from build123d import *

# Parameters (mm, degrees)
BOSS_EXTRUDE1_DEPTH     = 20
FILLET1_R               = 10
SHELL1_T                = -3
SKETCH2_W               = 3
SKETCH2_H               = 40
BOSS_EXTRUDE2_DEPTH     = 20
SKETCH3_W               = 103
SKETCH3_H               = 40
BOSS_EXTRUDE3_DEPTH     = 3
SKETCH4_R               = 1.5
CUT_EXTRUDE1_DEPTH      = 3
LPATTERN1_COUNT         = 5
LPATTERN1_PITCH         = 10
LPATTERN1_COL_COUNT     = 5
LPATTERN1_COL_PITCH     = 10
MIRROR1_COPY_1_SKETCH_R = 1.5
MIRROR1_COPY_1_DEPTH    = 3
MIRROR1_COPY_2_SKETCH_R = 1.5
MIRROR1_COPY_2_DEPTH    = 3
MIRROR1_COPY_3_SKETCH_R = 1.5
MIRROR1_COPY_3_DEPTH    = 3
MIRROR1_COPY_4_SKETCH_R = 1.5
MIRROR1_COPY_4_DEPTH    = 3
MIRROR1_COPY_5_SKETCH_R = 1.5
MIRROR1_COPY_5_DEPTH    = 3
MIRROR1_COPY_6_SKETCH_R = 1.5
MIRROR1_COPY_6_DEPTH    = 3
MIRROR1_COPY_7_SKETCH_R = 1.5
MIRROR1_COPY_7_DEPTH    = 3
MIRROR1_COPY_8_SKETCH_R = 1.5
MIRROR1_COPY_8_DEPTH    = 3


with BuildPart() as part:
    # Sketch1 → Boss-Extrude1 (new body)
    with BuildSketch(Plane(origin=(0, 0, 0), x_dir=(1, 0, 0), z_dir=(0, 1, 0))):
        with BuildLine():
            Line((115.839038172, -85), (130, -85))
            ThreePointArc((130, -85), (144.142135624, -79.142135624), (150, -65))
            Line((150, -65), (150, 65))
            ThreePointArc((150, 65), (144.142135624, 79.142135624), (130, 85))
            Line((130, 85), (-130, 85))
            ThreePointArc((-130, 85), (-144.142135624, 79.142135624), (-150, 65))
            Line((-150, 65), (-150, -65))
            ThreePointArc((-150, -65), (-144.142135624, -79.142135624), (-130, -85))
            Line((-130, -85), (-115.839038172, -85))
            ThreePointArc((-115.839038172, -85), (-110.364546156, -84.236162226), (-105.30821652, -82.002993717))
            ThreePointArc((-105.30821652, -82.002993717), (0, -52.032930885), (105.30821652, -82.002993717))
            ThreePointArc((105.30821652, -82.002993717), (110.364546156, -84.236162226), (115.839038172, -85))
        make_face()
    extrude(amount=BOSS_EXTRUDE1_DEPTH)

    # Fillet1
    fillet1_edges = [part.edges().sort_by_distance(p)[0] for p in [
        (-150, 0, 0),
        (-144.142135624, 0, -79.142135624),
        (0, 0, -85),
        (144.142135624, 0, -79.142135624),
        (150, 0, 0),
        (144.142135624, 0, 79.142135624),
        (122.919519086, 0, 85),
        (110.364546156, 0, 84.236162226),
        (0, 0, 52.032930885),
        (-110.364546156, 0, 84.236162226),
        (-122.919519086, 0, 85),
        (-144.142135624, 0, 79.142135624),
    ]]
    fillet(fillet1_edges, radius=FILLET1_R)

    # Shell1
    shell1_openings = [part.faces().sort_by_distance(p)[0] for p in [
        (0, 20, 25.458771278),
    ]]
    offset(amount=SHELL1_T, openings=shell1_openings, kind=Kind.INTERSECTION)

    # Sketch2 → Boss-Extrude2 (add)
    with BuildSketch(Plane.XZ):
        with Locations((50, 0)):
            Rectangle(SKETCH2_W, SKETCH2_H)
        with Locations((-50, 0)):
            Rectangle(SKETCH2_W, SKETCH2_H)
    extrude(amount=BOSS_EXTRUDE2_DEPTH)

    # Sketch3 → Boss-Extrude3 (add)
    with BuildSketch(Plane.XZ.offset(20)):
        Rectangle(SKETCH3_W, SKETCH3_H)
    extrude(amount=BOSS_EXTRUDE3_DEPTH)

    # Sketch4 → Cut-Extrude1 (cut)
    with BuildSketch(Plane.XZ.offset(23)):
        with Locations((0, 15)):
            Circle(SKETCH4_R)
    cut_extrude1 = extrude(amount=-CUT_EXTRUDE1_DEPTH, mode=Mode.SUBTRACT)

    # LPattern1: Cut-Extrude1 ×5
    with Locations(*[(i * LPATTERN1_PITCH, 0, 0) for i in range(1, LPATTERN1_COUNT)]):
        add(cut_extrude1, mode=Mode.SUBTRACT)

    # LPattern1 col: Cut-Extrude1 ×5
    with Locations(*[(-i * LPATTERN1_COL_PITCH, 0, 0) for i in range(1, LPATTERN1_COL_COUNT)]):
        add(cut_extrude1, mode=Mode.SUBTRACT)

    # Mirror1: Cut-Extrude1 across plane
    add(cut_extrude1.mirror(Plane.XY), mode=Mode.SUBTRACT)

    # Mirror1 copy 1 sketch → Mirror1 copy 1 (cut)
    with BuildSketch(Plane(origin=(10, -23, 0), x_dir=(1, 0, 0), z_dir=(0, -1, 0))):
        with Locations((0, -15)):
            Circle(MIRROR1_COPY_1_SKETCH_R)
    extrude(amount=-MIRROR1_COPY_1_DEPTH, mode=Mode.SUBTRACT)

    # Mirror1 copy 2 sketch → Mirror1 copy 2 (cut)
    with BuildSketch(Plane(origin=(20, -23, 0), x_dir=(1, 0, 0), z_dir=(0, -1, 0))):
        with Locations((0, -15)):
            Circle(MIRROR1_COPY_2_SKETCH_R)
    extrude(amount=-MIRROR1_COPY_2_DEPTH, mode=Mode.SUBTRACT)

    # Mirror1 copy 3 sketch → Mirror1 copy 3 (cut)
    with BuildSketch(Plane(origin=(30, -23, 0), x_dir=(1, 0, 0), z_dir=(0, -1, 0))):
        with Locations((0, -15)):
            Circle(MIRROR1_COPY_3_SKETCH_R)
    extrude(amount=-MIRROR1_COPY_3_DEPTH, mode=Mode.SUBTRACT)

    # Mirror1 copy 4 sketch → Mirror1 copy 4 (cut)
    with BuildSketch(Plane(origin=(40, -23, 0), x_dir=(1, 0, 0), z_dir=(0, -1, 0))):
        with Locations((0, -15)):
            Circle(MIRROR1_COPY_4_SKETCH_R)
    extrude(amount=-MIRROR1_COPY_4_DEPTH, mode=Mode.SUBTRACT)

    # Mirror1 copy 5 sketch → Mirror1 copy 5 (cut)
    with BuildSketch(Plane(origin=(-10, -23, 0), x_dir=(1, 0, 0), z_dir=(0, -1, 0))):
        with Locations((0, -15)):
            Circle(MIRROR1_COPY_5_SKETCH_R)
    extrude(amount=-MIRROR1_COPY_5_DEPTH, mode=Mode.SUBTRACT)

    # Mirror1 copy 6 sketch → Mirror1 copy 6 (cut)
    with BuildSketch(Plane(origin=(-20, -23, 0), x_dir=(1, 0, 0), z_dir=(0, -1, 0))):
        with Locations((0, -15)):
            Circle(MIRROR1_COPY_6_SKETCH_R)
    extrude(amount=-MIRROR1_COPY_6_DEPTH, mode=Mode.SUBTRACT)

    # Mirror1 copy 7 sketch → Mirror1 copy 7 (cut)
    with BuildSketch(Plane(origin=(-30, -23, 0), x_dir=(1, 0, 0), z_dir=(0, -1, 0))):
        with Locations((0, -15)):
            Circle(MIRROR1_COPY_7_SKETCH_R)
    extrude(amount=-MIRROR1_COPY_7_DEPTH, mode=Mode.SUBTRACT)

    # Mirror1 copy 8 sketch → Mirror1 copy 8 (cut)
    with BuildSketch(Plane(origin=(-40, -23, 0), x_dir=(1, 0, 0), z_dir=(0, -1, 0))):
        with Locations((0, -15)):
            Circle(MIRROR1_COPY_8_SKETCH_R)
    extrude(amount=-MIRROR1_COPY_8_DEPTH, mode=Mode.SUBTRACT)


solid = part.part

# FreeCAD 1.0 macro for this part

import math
import FreeCAD as App
import Part
import Sketcher
Q = App.Units.Quantity


def edges_at(feature, points):
    """Names of the edges that pass closest to the given points."""
    edges = feature.Shape.Edges
    near = lambda p: min(range(len(edges)), key=lambda i: edges[i].distToShape(Part.Vertex(*p))[0])
    return sorted({f"Edge{near(p) + 1}" for p in points})


def faces_at(feature, points):
    """Names of the faces that lie closest to the given points."""
    faces = feature.Shape.Faces
    near = lambda p: min(range(len(faces)), key=lambda i: faces[i].distToShape(Part.Vertex(*p))[0])
    return sorted({f"Face{near(p) + 1}" for p in points})


def add_polygon(sketch, points):
    """Adds a closed chain of lines whose ends are joined by coincident constraints."""
    first, n = sketch.GeometryCount, len(points)
    for a, b in zip(points, points[1:] + points[:1]):
        sketch.addGeometry(Part.LineSegment(App.Vector(*a, 0), App.Vector(*b, 0)), False)
    for i in range(n):
        sketch.addConstraint(Sketcher.Constraint("Coincident", first + i, 2, first + (i + 1) % n, 1))

doc = App.newDocument("Part")
body = doc.addObject("PartDesign::Body", "Body")

sketch1 = body.newObject("Sketcher::SketchObject", "Sketch")
sketch1.AttachmentSupport = (doc.getObject("XZ_Plane"), [""])
sketch1.MapMode = "FlatFace"
sketch1.addGeometry([
    Part.LineSegment(App.Vector(116, 85, 0), App.Vector(130, 85, 0)),
    Part.ArcOfCircle(Part.Circle(App.Vector(130, 65, 0), App.Vector(0, 0, 1), 20), math.radians(0), math.radians(90)),
    Part.LineSegment(App.Vector(150, 65, 0), App.Vector(150, -65, 0)),
    Part.ArcOfCircle(Part.Circle(App.Vector(130, -65, 0), App.Vector(0, 0, 1), 20), math.radians(-90), math.radians(0)),
    Part.LineSegment(App.Vector(130, -85, 0), App.Vector(-130, -85, 0)),
    Part.ArcOfCircle(Part.Circle(App.Vector(-130, -65, 0), App.Vector(0, 0, 1), 20), math.radians(180), math.radians(270)),
    Part.LineSegment(App.Vector(-150, -65, 0), App.Vector(-150, 65, 0)),
    Part.ArcOfCircle(Part.Circle(App.Vector(-130, 65, 0), App.Vector(0, 0, 1), 20), math.radians(90), math.radians(180)),
    Part.LineSegment(App.Vector(-130, 85, 0), App.Vector(-116, 85, 0)),
    Part.ArcOfCircle(Part.Circle(App.Vector(-116, 65, 0), App.Vector(0, 0, 1), 20), math.radians(58), math.radians(90)),
    Part.ArcOfCircle(Part.Circle(App.Vector(0, 252, 0), App.Vector(0, 0, 1), 200), math.radians(-122), math.radians(-58)),
    Part.ArcOfCircle(Part.Circle(App.Vector(116, 65, 0), App.Vector(0, 0, 1), 20), math.radians(90), math.radians(122)),
], False)
sketch1.addConstraint([
    Sketcher.Constraint("Tangent", 0, 2, 1, 2),
    Sketcher.Constraint("Tangent", 1, 1, 2, 1),
    Sketcher.Constraint("Tangent", 2, 2, 3, 2),
    Sketcher.Constraint("Tangent", 3, 1, 4, 1),
    Sketcher.Constraint("Tangent", 4, 2, 5, 2),
    Sketcher.Constraint("Tangent", 5, 1, 6, 1),
    Sketcher.Constraint("Tangent", 6, 2, 7, 2),
    Sketcher.Constraint("Tangent", 7, 1, 8, 1),
    Sketcher.Constraint("Tangent", 8, 2, 9, 2),
    Sketcher.Constraint("Tangent", 9, 1, 10, 1),
    Sketcher.Constraint("Tangent", 10, 2, 11, 2),
    Sketcher.Constraint("Tangent", 11, 1, 0, 1),
    Sketcher.Constraint("Horizontal", 0),
    Sketcher.Constraint("Vertical", 2),
    Sketcher.Constraint("Horizontal", 4),
    Sketcher.Constraint("Vertical", 6),
    Sketcher.Constraint("Horizontal", 8),
    Sketcher.Constraint("Equal", 1, 3),
    Sketcher.Constraint("Equal", 3, 5),
    Sketcher.Constraint("Equal", 5, 7),
    Sketcher.Constraint("Equal", 7, 9),
    Sketcher.Constraint("Equal", 9, 11),
    Sketcher.Constraint("Symmetric", 1, 3, 5, 3, -1, 1),
    Sketcher.Constraint("Symmetric", 9, 3, 11, 3, -2),
    Sketcher.Constraint("Radius", 1, Q("20 mm")),
    Sketcher.Constraint("Radius", 10, Q("200 mm")),
    Sketcher.Constraint("DistanceX", 4, 2, 4, 1, Q("260 mm")),
    Sketcher.Constraint("DistanceY", 2, 2, 2, 1, Q("130 mm")),
    Sketcher.Constraint("DistanceX", 0, 1, 0, 2, Q("14.160962 mm")),
])
pad1 = body.newObject("PartDesign::Pad", "Pad")
pad1.Profile = sketch1
pad1.Length = 20
pad1.Reversed = True
doc.recompute()

fillet = body.newObject("PartDesign::Fillet", "Fillet")
fillet.Base = (pad1, edges_at(pad1, [
    (-150, 0, 0),
    (-144.142, 0, -79.142),
    (0, 0, -85),
    (144.142, 0, -79.142),
    (150, 0, 0),
    (144.142, 0, 79.142),
    (122.92, 0, 85),
    (110.365, 0, 84.236),
    (0, 0, 52.033),
    (-110.365, 0, 84.236),
    (-122.92, 0, 85),
    (-144.142, 0, 79.142),
]))
fillet.Radius = 10
doc.recompute()

thickness = body.newObject("PartDesign::Thickness", "Thickness")
thickness.Base = (fillet, faces_at(fillet, [(0, 20, 0)]))
thickness.Value = 3
thickness.Reversed = True
thickness.Join = "Intersection"

sketch2 = body.newObject("Sketcher::SketchObject", "Sketch001")
sketch2.AttachmentSupport = (doc.getObject("XZ_Plane"), [""])
sketch2.MapMode = "FlatFace"
add_polygon(sketch2, [(48.5, 20), (48.5, -20), (51.5, -20), (51.5, 20)])
add_polygon(sketch2, [(-51.5, 20), (-51.5, -20), (-48.5, -20), (-48.5, 20)])
sketch2.addConstraint([
    Sketcher.Constraint("Vertical", 0),
    Sketcher.Constraint("Horizontal", 1),
    Sketcher.Constraint("Vertical", 2),
    Sketcher.Constraint("Horizontal", 3),
    Sketcher.Constraint("Vertical", 4),
    Sketcher.Constraint("Horizontal", 5),
    Sketcher.Constraint("Vertical", 6),
    Sketcher.Constraint("Horizontal", 7),
    Sketcher.Constraint("Symmetric", 2, 2, 4, 2, -1, 1),
    Sketcher.Constraint("Symmetric", 0, 2, 6, 2, -1, 1),
    Sketcher.Constraint("Horizontal", 1, 2, 4, 2),
    Sketcher.Constraint("DistanceX", 1, 1, 1, 2, Q("3 mm")),
    Sketcher.Constraint("DistanceY", 0, 2, 0, 1, Q("40 mm")),
    Sketcher.Constraint("DistanceX", 4, 2, 0, 2, Q("100 mm")),
])
pad2 = body.newObject("PartDesign::Pad", "Pad001")
pad2.Profile = sketch2
pad2.Length = 20

sketch3 = body.newObject("Sketcher::SketchObject", "Sketch002")
sketch3.AttachmentSupport = (doc.getObject("XZ_Plane"), [""])
sketch3.MapMode = "FlatFace"
sketch3.AttachmentOffset = App.Placement(App.Vector(0, 0, 20), App.Rotation())
add_polygon(sketch3, [(-52, 20), (-52, -20), (52, -20), (52, 20)])
sketch3.addConstraint([
    Sketcher.Constraint("Vertical", 0),
    Sketcher.Constraint("Horizontal", 1),
    Sketcher.Constraint("Vertical", 2),
    Sketcher.Constraint("Horizontal", 3),
    Sketcher.Constraint("Symmetric", 0, 2, 2, 2, -1, 1),
    Sketcher.Constraint("DistanceX", 1, 1, 1, 2, Q("103 mm")),
    Sketcher.Constraint("DistanceY", 0, 2, 0, 1, Q("40 mm")),
])
pad3 = body.newObject("PartDesign::Pad", "Pad002")
pad3.Profile = sketch3
pad3.Length = 3

sketch4 = body.newObject("Sketcher::SketchObject", "Sketch003")
sketch4.AttachmentSupport = (doc.getObject("XZ_Plane"), [""])
sketch4.MapMode = "FlatFace"
sketch4.AttachmentOffset = App.Placement(App.Vector(0, 0, 23), App.Rotation())
sketch4.addGeometry(Part.Circle(App.Vector(0, 15, 0), App.Vector(0, 0, 1), 1.5), False)
sketch4.addConstraint([
    Sketcher.Constraint("PointOnObject", 0, 3, -2),
    Sketcher.Constraint("Diameter", 0, Q("3 mm")),
    Sketcher.Constraint("DistanceY", -1, 1, 0, 3, Q("15 mm")),
])
pocket1 = body.newObject("PartDesign::Pocket", "Pocket")
pocket1.Profile = sketch4
pocket1.Length = 3
doc.recompute()

linearpattern = body.newObject("PartDesign::LinearPattern", "LinearPattern")
linearpattern.Originals = [pocket1]
linearpattern.Direction = (doc.getObject("X_Axis"), [""])
linearpattern.Mode = "offset"
linearpattern.Offset = 10
linearpattern.Occurrences = 5
body.Tip = linearpattern
doc.recompute()

linearpattern2 = body.newObject("PartDesign::LinearPattern", "LinearPattern001")
linearpattern2.Originals = [pocket1]
linearpattern2.Direction = (doc.getObject("X_Axis"), [""])
linearpattern2.Mode = "offset"
linearpattern2.Offset = 10
linearpattern2.Occurrences = 5
linearpattern2.Reversed = True
body.Tip = linearpattern2
doc.recompute()

mirrored = body.newObject("PartDesign::Mirrored", "Mirrored")
mirrored.Originals = [pocket1]
mirrored.MirrorPlane = (doc.getObject("XY_Plane"), [""])
body.Tip = mirrored

sketch5 = body.newObject("Sketcher::SketchObject", "Sketch004")
sketch5.AttachmentSupport = (doc.getObject("XZ_Plane"), [""])
sketch5.MapMode = "FlatFace"
sketch5.AttachmentOffset = App.Placement(App.Vector(0, 0, 23), App.Rotation())
sketch5.addGeometry(Part.Circle(App.Vector(10, -15, 0), App.Vector(0, 0, 1), 1.5), False)
sketch5.addConstraint([
    Sketcher.Constraint("Diameter", 0, Q("3 mm")),
    Sketcher.Constraint("DistanceX", -1, 1, 0, 3, Q("10 mm")),
    Sketcher.Constraint("DistanceY", 0, 3, -1, 1, Q("15 mm")),
])
pocket2 = body.newObject("PartDesign::Pocket", "Pocket001")
pocket2.Profile = sketch5
pocket2.Length = 3

sketch6 = body.newObject("Sketcher::SketchObject", "Sketch005")
sketch6.AttachmentSupport = (doc.getObject("XZ_Plane"), [""])
sketch6.MapMode = "FlatFace"
sketch6.AttachmentOffset = App.Placement(App.Vector(0, 0, 23), App.Rotation())
sketch6.addGeometry(Part.Circle(App.Vector(20, -15, 0), App.Vector(0, 0, 1), 1.5), False)
sketch6.addConstraint([
    Sketcher.Constraint("Diameter", 0, Q("3 mm")),
    Sketcher.Constraint("DistanceX", -1, 1, 0, 3, Q("20 mm")),
    Sketcher.Constraint("DistanceY", 0, 3, -1, 1, Q("15 mm")),
])
pocket3 = body.newObject("PartDesign::Pocket", "Pocket002")
pocket3.Profile = sketch6
pocket3.Length = 3

sketch7 = body.newObject("Sketcher::SketchObject", "Sketch006")
sketch7.AttachmentSupport = (doc.getObject("XZ_Plane"), [""])
sketch7.MapMode = "FlatFace"
sketch7.AttachmentOffset = App.Placement(App.Vector(0, 0, 23), App.Rotation())
sketch7.addGeometry(Part.Circle(App.Vector(30, -15, 0), App.Vector(0, 0, 1), 1.5), False)
sketch7.addConstraint([
    Sketcher.Constraint("Diameter", 0, Q("3 mm")),
    Sketcher.Constraint("DistanceX", -1, 1, 0, 3, Q("30 mm")),
    Sketcher.Constraint("DistanceY", 0, 3, -1, 1, Q("15 mm")),
])
pocket4 = body.newObject("PartDesign::Pocket", "Pocket003")
pocket4.Profile = sketch7
pocket4.Length = 3

sketch8 = body.newObject("Sketcher::SketchObject", "Sketch007")
sketch8.AttachmentSupport = (doc.getObject("XZ_Plane"), [""])
sketch8.MapMode = "FlatFace"
sketch8.AttachmentOffset = App.Placement(App.Vector(0, 0, 23), App.Rotation())
sketch8.addGeometry(Part.Circle(App.Vector(40, -15, 0), App.Vector(0, 0, 1), 1.5), False)
sketch8.addConstraint([
    Sketcher.Constraint("Diameter", 0, Q("3 mm")),
    Sketcher.Constraint("DistanceX", -1, 1, 0, 3, Q("40 mm")),
    Sketcher.Constraint("DistanceY", 0, 3, -1, 1, Q("15 mm")),
])
pocket5 = body.newObject("PartDesign::Pocket", "Pocket004")
pocket5.Profile = sketch8
pocket5.Length = 3

sketch9 = body.newObject("Sketcher::SketchObject", "Sketch008")
sketch9.AttachmentSupport = (doc.getObject("XZ_Plane"), [""])
sketch9.MapMode = "FlatFace"
sketch9.AttachmentOffset = App.Placement(App.Vector(0, 0, 23), App.Rotation())
sketch9.addGeometry(Part.Circle(App.Vector(-10, -15, 0), App.Vector(0, 0, 1), 1.5), False)
sketch9.addConstraint([
    Sketcher.Constraint("Diameter", 0, Q("3 mm")),
    Sketcher.Constraint("DistanceX", 0, 3, -1, 1, Q("10 mm")),
    Sketcher.Constraint("DistanceY", 0, 3, -1, 1, Q("15 mm")),
])
pocket6 = body.newObject("PartDesign::Pocket", "Pocket005")
pocket6.Profile = sketch9
pocket6.Length = 3

sketch10 = body.newObject("Sketcher::SketchObject", "Sketch009")
sketch10.AttachmentSupport = (doc.getObject("XZ_Plane"), [""])
sketch10.MapMode = "FlatFace"
sketch10.AttachmentOffset = App.Placement(App.Vector(0, 0, 23), App.Rotation())
sketch10.addGeometry(Part.Circle(App.Vector(-20, -15, 0), App.Vector(0, 0, 1), 1.5), False)
sketch10.addConstraint([
    Sketcher.Constraint("Diameter", 0, Q("3 mm")),
    Sketcher.Constraint("DistanceX", 0, 3, -1, 1, Q("20 mm")),
    Sketcher.Constraint("DistanceY", 0, 3, -1, 1, Q("15 mm")),
])
pocket7 = body.newObject("PartDesign::Pocket", "Pocket006")
pocket7.Profile = sketch10
pocket7.Length = 3

sketch11 = body.newObject("Sketcher::SketchObject", "Sketch010")
sketch11.AttachmentSupport = (doc.getObject("XZ_Plane"), [""])
sketch11.MapMode = "FlatFace"
sketch11.AttachmentOffset = App.Placement(App.Vector(0, 0, 23), App.Rotation())
sketch11.addGeometry(Part.Circle(App.Vector(-30, -15, 0), App.Vector(0, 0, 1), 1.5), False)
sketch11.addConstraint([
    Sketcher.Constraint("Diameter", 0, Q("3 mm")),
    Sketcher.Constraint("DistanceX", 0, 3, -1, 1, Q("30 mm")),
    Sketcher.Constraint("DistanceY", 0, 3, -1, 1, Q("15 mm")),
])
pocket8 = body.newObject("PartDesign::Pocket", "Pocket007")
pocket8.Profile = sketch11
pocket8.Length = 3

sketch12 = body.newObject("Sketcher::SketchObject", "Sketch011")
sketch12.AttachmentSupport = (doc.getObject("XZ_Plane"), [""])
sketch12.MapMode = "FlatFace"
sketch12.AttachmentOffset = App.Placement(App.Vector(0, 0, 23), App.Rotation())
sketch12.addGeometry(Part.Circle(App.Vector(-40, -15, 0), App.Vector(0, 0, 1), 1.5), False)
sketch12.addConstraint([
    Sketcher.Constraint("Diameter", 0, Q("3 mm")),
    Sketcher.Constraint("DistanceX", 0, 3, -1, 1, Q("40 mm")),
    Sketcher.Constraint("DistanceY", 0, 3, -1, 1, Q("15 mm")),
])
pocket9 = body.newObject("PartDesign::Pocket", "Pocket008")
pocket9.Profile = sketch12
pocket9.Length = 3

doc.recompute()
